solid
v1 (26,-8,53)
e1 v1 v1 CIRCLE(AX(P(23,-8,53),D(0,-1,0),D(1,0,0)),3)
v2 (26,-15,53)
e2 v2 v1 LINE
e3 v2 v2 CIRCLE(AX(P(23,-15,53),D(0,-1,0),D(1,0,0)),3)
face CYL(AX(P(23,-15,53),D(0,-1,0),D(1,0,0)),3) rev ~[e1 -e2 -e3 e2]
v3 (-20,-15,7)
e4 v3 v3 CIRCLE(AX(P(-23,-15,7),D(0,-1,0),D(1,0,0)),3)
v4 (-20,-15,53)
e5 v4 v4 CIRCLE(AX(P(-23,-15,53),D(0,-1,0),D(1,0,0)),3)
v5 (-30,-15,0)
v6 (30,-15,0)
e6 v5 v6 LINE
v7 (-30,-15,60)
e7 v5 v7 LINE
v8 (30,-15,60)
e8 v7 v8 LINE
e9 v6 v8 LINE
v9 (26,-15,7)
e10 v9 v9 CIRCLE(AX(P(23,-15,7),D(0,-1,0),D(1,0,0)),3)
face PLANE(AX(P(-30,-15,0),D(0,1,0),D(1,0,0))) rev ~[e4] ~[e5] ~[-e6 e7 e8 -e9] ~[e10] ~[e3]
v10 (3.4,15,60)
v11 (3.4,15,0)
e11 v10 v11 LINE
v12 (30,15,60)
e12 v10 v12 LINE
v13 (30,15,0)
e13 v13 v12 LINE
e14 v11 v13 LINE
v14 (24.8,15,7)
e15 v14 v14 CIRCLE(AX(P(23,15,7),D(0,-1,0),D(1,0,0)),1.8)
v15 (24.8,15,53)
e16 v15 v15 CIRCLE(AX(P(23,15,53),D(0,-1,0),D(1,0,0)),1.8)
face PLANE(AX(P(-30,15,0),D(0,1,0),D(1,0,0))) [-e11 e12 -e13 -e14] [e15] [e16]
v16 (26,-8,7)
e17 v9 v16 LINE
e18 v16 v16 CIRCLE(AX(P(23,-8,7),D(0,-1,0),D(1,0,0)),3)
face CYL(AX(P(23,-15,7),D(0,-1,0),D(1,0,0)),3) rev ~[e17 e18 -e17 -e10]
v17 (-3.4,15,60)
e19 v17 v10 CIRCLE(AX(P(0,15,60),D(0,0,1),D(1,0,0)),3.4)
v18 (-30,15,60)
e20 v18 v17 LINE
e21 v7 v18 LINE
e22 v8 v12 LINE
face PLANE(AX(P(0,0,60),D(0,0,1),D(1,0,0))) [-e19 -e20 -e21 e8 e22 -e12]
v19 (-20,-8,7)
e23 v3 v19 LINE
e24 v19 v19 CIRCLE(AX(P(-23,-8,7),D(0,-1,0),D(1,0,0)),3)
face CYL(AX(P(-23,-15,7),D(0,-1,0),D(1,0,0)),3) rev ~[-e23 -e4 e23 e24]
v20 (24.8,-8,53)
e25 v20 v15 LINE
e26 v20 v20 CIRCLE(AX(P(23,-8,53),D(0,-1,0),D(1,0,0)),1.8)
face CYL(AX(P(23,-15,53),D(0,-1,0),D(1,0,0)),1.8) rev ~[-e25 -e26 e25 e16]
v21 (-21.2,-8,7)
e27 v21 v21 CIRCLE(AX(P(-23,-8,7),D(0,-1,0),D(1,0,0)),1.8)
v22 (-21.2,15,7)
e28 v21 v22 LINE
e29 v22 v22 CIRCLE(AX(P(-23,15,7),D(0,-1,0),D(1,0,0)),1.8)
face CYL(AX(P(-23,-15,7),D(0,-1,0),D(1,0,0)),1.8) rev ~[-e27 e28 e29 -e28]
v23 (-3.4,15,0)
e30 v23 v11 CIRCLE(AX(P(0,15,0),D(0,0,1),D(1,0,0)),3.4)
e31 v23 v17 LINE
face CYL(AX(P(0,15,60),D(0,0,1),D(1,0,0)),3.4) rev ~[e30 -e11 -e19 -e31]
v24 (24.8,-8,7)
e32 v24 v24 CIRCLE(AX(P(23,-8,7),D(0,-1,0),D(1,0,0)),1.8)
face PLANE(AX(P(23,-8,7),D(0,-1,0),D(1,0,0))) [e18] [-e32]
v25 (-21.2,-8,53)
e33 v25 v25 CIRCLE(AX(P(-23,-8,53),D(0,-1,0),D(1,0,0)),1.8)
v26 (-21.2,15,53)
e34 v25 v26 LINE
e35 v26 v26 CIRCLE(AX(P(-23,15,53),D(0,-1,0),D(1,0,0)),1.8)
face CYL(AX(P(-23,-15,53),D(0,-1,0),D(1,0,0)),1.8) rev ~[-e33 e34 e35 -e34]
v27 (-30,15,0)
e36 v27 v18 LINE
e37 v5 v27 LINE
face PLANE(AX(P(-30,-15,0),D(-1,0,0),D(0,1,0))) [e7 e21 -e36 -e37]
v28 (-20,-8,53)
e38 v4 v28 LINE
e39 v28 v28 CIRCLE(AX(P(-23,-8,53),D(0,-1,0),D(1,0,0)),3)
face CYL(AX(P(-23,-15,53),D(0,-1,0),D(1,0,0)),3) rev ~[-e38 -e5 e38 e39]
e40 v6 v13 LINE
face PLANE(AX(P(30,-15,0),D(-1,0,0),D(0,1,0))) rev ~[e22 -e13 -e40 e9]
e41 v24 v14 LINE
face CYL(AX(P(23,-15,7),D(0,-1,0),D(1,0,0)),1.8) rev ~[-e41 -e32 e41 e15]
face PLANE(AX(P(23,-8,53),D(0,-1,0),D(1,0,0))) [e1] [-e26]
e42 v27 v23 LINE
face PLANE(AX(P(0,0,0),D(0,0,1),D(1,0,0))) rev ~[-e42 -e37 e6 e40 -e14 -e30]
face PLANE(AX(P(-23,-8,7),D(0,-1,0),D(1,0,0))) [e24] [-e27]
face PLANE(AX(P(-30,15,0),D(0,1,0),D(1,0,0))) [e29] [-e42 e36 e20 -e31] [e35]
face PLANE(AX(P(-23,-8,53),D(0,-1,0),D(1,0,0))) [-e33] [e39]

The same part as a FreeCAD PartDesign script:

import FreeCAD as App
import Part
import Sketcher

V = App.Vector
Q = App.Units.Quantity


def add_polygon(sketch, points):
    """Adds a closed chain of lines whose ends are joined by coincident constraints."""
    first, n = sketch.GeometryCount, len(points)
    for a, b in zip(points, points[1:] + points[:1]):
        sketch.addGeometry(Part.LineSegment(App.Vector(*a, 0), App.Vector(*b, 0)), False)
    for i in range(n):
        sketch.addConstraint(Sketcher.Constraint("Coincident", first + i, 2, first + (i + 1) % n, 1))

doc = App.newDocument("Part")
params = doc.addObject("Spreadsheet::Sheet", "Params")
for row, (alias, value) in enumerate([
    ("sketch1_width", "60 mm"),
    ("sketch1_height", "30 mm"),
    ("pad1_length", "60 mm"),
    ("sketch2_diameter", "6.8 mm"),
    ("sketch3_diameter", "3.6 mm"),
    ("sketch4_diameter", "6 mm"),
    ("pocket3_length", "7 mm"),
    ("sketch5_diameter", "6 mm"),
    ("pocket4_length", "7 mm"),
    ("sketch6_diameter", "6 mm"),
    ("pocket5_length", "7 mm"),
    ("sketch7_diameter", "6 mm"),
    ("pocket6_length", "7 mm"),
], start=1):
    params.set(f"A{row}", alias)
    params.set(f"B{row}", "=" + value)
    params.setAlias(f"B{row}", alias)

body = doc.addObject("PartDesign::Body", "Body")

# Sketch on XY plane
sketch1 = doc.addObject("Sketcher::SketchObject", "Sketch")
body.addObject(sketch1)
sketch1.AttachmentSupport = (doc.XY_Plane, [""])
sketch1.MapMode = "FlatFace"
add_polygon(sketch1, [(-30, 15), (-30, -15), (30, -15), (30, 15)])  # lines 0-3
sketch1.addConstraint(Sketcher.Constraint("Vertical", 0))
sketch1.addConstraint(Sketcher.Constraint("Horizontal", 1))
sketch1.addConstraint(Sketcher.Constraint("Vertical", 2))
sketch1.addConstraint(Sketcher.Constraint("Horizontal", 3))
sketch1.addConstraint(Sketcher.Constraint("Symmetric", 0, 2, 2, 2, -1, 1))
sketch1.addConstraint(Sketcher.Constraint("DistanceX", 1, 1, 1, 2, Q("60 mm")))
sketch1.addConstraint(Sketcher.Constraint("DistanceY", 0, 2, 0, 1, Q("30 mm")))
sketch1.setExpression("Constraints[9]", "Params.sketch1_width")
sketch1.setExpression("Constraints[10]", "Params.sketch1_height")
pad1 = doc.addObject("PartDesign::Pad", "Pad")
body.addObject(pad1)
pad1.Profile = sketch1
pad1.setExpression("Length", "Params.pad1_length")

# Sketch on XY plane
sketch2 = doc.addObject("Sketcher::SketchObject", "Sketch001")
body.addObject(sketch2)
sketch2.AttachmentSupport = (doc.XY_Plane, [""])
sketch2.MapMode = "FlatFace"
sketch2.AttachmentOffset = App.Placement(V(0, 0, 60), App.Rotation())
sketch2.addGeometry(Part.Circle(V(0, 15, 0), V(0, 0, 1), 3.4), False)
sketch2.addConstraint(Sketcher.Constraint("PointOnObject", 0, 3, -2))
sketch2.addConstraint(Sketcher.Constraint("Diameter", 0, Q("6.8 mm")))
sketch2.addConstraint(Sketcher.Constraint("DistanceY", -1, 1, 0, 3, Q("15 mm")))
sketch2.setExpression("Constraints[1]", "Params.sketch2_diameter")
pocket1 = doc.addObject("PartDesign::Pocket", "Pocket")
body.addObject(pocket1)
pocket1.Profile = sketch2
pocket1.Type = "ThroughAll"

# Sketch on XZ plane
sketch3 = doc.addObject("Sketcher::SketchObject", "Sketch002")
body.addObject(sketch3)
sketch3.AttachmentSupport = (doc.XZ_Plane, [""])
sketch3.MapMode = "FlatFace"
sketch3.AttachmentOffset = App.Placement(V(0, 0, 15), App.Rotation())
sketch3.addGeometry(Part.Circle(V(-23, 53, 0), V(0, 0, 1), 1.8), False)
sketch3.addGeometry(Part.Circle(V(23, 53, 0), V(0, 0, 1), 1.8), False)
sketch3.addGeometry(Part.Circle(V(23, 7, 0), V(0, 0, 1), 1.8), False)
sketch3.addGeometry(Part.Circle(V(-23, 7, 0), V(0, 0, 1), 1.8), False)
sketch3.addConstraint(Sketcher.Constraint("Equal", 0, 1))
sketch3.addConstraint(Sketcher.Constraint("Equal", 1, 2))
sketch3.addConstraint(Sketcher.Constraint("Equal", 2, 3))
sketch3.addConstraint(Sketcher.Constraint("Symmetric", 0, 3, 1, 3, -2))
sketch3.addConstraint(Sketcher.Constraint("Symmetric", 2, 3, 3, 3, -2))
sketch3.addConstraint(Sketcher.Constraint("Vertical", 1, 3, 2, 3))
sketch3.addConstraint(Sketcher.Constraint("Diameter", 0, Q("3.6 mm")))
sketch3.addConstraint(Sketcher.Constraint("DistanceX", 0, 3, -1, 1, Q("23 mm")))
sketch3.addConstraint(Sketcher.Constraint("DistanceY", -1, 1, 0, 3, Q("53 mm")))
sketch3.addConstraint(Sketcher.Constraint("DistanceY", -1, 1, 2, 3, Q("7 mm")))
sketch3.setExpression("Constraints[6]", "Params.sketch3_diameter")
pocket2 = doc.addObject("PartDesign::Pocket", "Pocket001")
body.addObject(pocket2)
pocket2.Profile = sketch3
pocket2.Type = "ThroughAll"

# Sketch on XZ plane
sketch4 = doc.addObject("Sketcher::SketchObject", "Sketch003")
body.addObject(sketch4)
sketch4.AttachmentSupport = (doc.XZ_Plane, [""])
sketch4.MapMode = "FlatFace"
sketch4.AttachmentOffset = App.Placement(V(0, 0, 15), App.Rotation())
sketch4.addGeometry(Part.Circle(V(-23, 53, 0), V(0, 0, 1), 3), False)
sketch4.addConstraint(Sketcher.Constraint("Diameter", 0, Q("6 mm")))
sketch4.addConstraint(Sketcher.Constraint("DistanceX", 0, 3, -1, 1, Q("23 mm")))
sketch4.addConstraint(Sketcher.Constraint("DistanceY", -1, 1, 0, 3, Q("53 mm")))
sketch4.setExpression("Constraints[0]", "Params.sketch4_diameter")
pocket3 = doc.addObject("PartDesign::Pocket", "Pocket002")
body.addObject(pocket3)
pocket3.Profile = sketch4
pocket3.setExpression("Length", "Params.pocket3_length")

# Sketch on XZ plane
sketch5 = doc.addObject("Sketcher::SketchObject", "Sketch004")
body.addObject(sketch5)
sketch5.AttachmentSupport = (doc.XZ_Plane, [""])
sketch5.MapMode = "FlatFace"
sketch5.AttachmentOffset = App.Placement(V(0, 0, 15), App.Rotation())
sketch5.addGeometry(Part.Circle(V(23, 53, 0), V(0, 0, 1), 3), False)
sketch5.addConstraint(Sketcher.Constraint("Diameter", 0, Q("6 mm")))
sketch5.addConstraint(Sketcher.Constraint("DistanceX", -1, 1, 0, 3, Q("23 mm")))
sketch5.addConstraint(Sketcher.Constraint("DistanceY", -1, 1, 0, 3, Q("53 mm")))
sketch5.setExpression("Constraints[0]", "Params.sketch5_diameter")
pocket4 = doc.addObject("PartDesign::Pocket", "Pocket003")
body.addObject(pocket4)
pocket4.Profile = sketch5
pocket4.setExpression("Length", "Params.pocket4_length")

# Sketch on XZ plane
sketch6 = doc.addObject("Sketcher::SketchObject", "Sketch005")
body.addObject(sketch6)
sketch6.AttachmentSupport = (doc.XZ_Plane, [""])
sketch6.MapMode = "FlatFace"
sketch6.AttachmentOffset = App.Placement(V(0, 0, 15), App.Rotation())
sketch6.addGeometry(Part.Circle(V(-23, 7, 0), V(0, 0, 1), 3), False)
sketch6.addConstraint(Sketcher.Constraint("Diameter", 0, Q("6 mm")))
sketch6.addConstraint(Sketcher.Constraint("DistanceX", 0, 3, -1, 1, Q("23 mm")))
sketch6.addConstraint(Sketcher.Constraint("DistanceY", -1, 1, 0, 3, Q("7 mm")))
sketch6.setExpression("Constraints[0]", "Params.sketch6_diameter")
pocket5 = doc.addObject("PartDesign::Pocket", "Pocket004")
body.addObject(pocket5)
pocket5.Profile = sketch6
pocket5.setExpression("Length", "Params.pocket5_length")

# Sketch on XZ plane
sketch7 = doc.addObject("Sketcher::SketchObject", "Sketch006")
body.addObject(sketch7)
sketch7.AttachmentSupport = (doc.XZ_Plane, [""])
sketch7.MapMode = "FlatFace"
sketch7.AttachmentOffset = App.Placement(V(0, 0, 15), App.Rotation())
sketch7.addGeometry(Part.Circle(V(23, 7, 0), V(0, 0, 1), 3), False)
sketch7.addConstraint(Sketcher.Constraint("Diameter", 0, Q("6 mm")))
sketch7.addConstraint(Sketcher.Constraint("DistanceX", -1, 1, 0, 3, Q("23 mm")))
sketch7.addConstraint(Sketcher.Constraint("DistanceY", -1, 1, 0, 3, Q("7 mm")))
sketch7.setExpression("Constraints[0]", "Params.sketch7_diameter")
pocket6 = doc.addObject("PartDesign::Pocket", "Pocket005")
body.addObject(pocket6)
pocket6.Profile = sketch7
pocket6.setExpression("Length", "Params.pocket6_length")

doc.recompute()
